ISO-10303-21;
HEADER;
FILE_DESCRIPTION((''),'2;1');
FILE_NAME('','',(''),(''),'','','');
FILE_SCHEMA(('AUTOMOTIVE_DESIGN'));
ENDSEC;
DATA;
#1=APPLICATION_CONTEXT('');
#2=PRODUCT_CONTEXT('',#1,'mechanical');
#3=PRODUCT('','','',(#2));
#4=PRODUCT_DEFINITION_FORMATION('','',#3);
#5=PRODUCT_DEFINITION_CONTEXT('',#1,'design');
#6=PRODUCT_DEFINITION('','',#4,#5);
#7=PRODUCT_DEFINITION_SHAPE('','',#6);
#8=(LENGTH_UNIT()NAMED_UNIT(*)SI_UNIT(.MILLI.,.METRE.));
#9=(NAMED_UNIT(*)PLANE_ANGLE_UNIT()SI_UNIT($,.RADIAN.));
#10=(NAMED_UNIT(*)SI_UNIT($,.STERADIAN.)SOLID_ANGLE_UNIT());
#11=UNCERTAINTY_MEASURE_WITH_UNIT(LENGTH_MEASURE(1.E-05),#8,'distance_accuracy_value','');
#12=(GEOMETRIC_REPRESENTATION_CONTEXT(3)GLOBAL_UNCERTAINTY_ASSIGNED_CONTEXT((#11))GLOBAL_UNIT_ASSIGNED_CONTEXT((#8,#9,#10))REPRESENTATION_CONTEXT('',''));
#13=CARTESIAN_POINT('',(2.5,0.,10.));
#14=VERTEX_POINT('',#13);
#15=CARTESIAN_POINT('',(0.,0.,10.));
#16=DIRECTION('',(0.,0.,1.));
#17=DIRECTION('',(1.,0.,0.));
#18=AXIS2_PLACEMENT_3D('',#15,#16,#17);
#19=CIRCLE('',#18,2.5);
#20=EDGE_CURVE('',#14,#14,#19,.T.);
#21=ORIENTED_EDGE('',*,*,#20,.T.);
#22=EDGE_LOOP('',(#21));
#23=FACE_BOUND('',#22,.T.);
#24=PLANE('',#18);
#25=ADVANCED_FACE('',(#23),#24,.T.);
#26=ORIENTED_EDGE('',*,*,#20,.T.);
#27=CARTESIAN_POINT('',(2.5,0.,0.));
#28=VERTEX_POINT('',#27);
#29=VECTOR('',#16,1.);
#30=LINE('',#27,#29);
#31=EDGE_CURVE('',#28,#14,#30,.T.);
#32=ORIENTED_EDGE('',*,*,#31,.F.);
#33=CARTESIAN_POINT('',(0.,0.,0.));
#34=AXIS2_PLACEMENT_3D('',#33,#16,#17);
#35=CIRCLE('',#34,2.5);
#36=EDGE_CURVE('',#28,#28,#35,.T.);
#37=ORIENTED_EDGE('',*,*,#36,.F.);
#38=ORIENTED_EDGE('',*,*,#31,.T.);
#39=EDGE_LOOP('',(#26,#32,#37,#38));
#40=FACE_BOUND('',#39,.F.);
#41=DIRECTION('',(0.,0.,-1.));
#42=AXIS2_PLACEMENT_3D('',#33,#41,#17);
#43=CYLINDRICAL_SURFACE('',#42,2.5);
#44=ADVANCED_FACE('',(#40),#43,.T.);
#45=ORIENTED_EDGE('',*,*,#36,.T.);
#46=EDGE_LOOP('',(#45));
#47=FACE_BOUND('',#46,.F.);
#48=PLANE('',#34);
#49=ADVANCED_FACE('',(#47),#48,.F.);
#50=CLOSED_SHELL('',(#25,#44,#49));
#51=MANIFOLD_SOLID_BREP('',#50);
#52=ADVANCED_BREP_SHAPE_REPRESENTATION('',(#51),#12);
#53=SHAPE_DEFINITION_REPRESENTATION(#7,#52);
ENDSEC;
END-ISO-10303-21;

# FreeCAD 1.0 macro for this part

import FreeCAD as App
import Part
import Sketcher

V = App.Vector
Q = App.Units.Quantity

doc = App.newDocument("Part")
params = doc.addObject("Spreadsheet::Sheet", "Params")
for row, (alias, value) in enumerate([
    ("sketch1_diameter", "5 mm"),
    ("pad1_length", "10 mm"),
], start=1):
    params.set(f"A{row}", alias)
    params.set(f"B{row}", "=" + value)
    params.setAlias(f"B{row}", alias)

body = doc.addObject("PartDesign::Body", "Body")

# Sketch on XY plane
sketch1 = body.newObject("Sketcher::SketchObject", "Sketch")
sketch1.AttachmentSupport = (doc.getObject("XY_Plane"), [""])
sketch1.MapMode = "FlatFace"
sketch1.addGeometry(Part.Circle(V(0, 0, 0), V(0, 0, 1), 2.5), False)
sketch1.addConstraint(Sketcher.Constraint("Coincident", 0, 3, -1, 1))
sketch1.addConstraint(Sketcher.Constraint("Diameter", 0, Q("5 mm")))
sketch1.setExpression("Constraints[1]", "Params.sketch1_diameter")
pad1 = body.newObject("PartDesign::Pad", "Pad")
pad1.Profile = sketch1
pad1.setExpression("Length", "Params.pad1_length")

doc.recompute()
